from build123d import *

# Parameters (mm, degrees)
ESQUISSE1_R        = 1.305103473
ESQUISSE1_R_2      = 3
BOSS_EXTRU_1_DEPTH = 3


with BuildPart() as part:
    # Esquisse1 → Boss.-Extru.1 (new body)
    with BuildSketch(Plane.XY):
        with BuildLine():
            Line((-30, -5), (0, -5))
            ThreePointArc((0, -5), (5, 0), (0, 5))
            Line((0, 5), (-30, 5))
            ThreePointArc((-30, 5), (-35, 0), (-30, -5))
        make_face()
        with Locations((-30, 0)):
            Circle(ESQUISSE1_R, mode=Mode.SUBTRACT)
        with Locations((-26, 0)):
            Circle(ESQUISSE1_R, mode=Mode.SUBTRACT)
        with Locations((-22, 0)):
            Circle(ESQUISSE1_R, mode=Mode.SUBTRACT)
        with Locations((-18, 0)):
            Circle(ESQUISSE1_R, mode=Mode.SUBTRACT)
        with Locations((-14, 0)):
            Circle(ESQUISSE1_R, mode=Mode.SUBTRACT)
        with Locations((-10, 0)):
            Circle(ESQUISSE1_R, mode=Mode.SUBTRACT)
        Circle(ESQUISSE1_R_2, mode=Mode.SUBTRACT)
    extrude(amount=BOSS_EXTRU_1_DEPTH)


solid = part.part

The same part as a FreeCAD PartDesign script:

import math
import FreeCAD as App
import Part
import Sketcher

doc = App.newDocument("Part")
body = doc.addObject("PartDesign::Body", "Body")

# Sketch on XY plane
sketch1 = body.newObject("Sketcher::SketchObject", "Sketch")
sketch1.AttachmentSupport = (doc.getObject("XY_Plane"), [""])
sketch1.MapMode = "FlatFace"
sketch1.addGeometry(Part.LineSegment(App.Vector(-30, -5, 0), App.Vector(0, -5, 0)), False)
sketch1.addGeometry(Part.ArcOfCircle(Part.Circle(App.Vector(0, 0, 0), App.Vector(0, 0, 1), 5), math.radians(-90), math.radians(90)), False)
sketch1.addGeometry(Part.LineSegment(App.Vector(0, 5, 0), App.Vector(-30, 5, 0)), False)
sketch1.addGeometry(Part.ArcOfCircle(Part.Circle(App.Vector(-30, 0, 0), App.Vector(0, 0, 1), 5), math.radians(90), math.radians(270)), False)
sketch1.addGeometry(Part.Circle(App.Vector(-30, 0, 0), App.Vector(0, 0, 1), 1.305103), False)
sketch1.addGeometry(Part.Circle(App.Vector(-26, 0, 0), App.Vector(0, 0, 1), 1.305103), False)
sketch1.addGeometry(Part.Circle(App.Vector(-22, 0, 0), App.Vector(0, 0, 1), 1.305103), False)
sketch1.addGeometry(Part.Circle(App.Vector(-18, 0, 0), App.Vector(0, 0, 1), 1.305103), False)
sketch1.addGeometry(Part.Circle(App.Vector(-14, 0, 0), App.Vector(0, 0, 1), 1.305103), False)
sketch1.addGeometry(Part.Circle(App.Vector(-10, 0, 0), App.Vector(0, 0, 1), 1.305103), False)
sketch1.addGeometry(Part.Circle(App.Vector(0, 0, 0), App.Vector(0, 0, 1), 3), False)
sketch1.addConstraint(Sketcher.Constraint("Tangent", 0, 2, 1, 1))
sketch1.addConstraint(Sketcher.Constraint("Tangent", 1, 2, 2, 1))
sketch1.addConstraint(Sketcher.Constraint("Tangent", 2, 2, 3, 1))
sketch1.addConstraint(Sketcher.Constraint("Tangent", 3, 2, 0, 1))
sketch1.addConstraint(Sketcher.Constraint("Horizontal", 0))
sketch1.addConstraint(Sketcher.Constraint("Horizontal", 2))
sketch1.addConstraint(Sketcher.Constraint("Coincident", 1, 3, -1, 1))
sketch1.addConstraint(Sketcher.Constraint("Coincident", 10, 3, -1, 1))
sketch1.addConstraint(Sketcher.Constraint("Coincident", 4, 3, 3, 3))
sketch1.addConstraint(Sketcher.Constraint("Equal", 4, 5))
sketch1.addConstraint(Sketcher.Constraint("Equal", 5, 6))
sketch1.addConstraint(Sketcher.Constraint("Equal", 6, 7))
sketch1.addConstraint(Sketcher.Constraint("Equal", 7, 8))
sketch1.addConstraint(Sketcher.Constraint("Equal", 8, 9))
sketch1.addConstraint(Sketcher.Constraint("PointOnObject", 5, 3, -1))
sketch1.addConstraint(Sketcher.Constraint("PointOnObject", 6, 3, -1))
sketch1.addConstraint(Sketcher.Constraint("PointOnObject", 7, 3, -1))
sketch1.addConstraint(Sketcher.Constraint("PointOnObject", 8, 3, -1))
sketch1.addConstraint(Sketcher.Constraint("PointOnObject", 9, 3, -1))
sketch1.addConstraint(Sketcher.Constraint("Diameter", 10, 6.0))
sketch1.addConstraint(Sketcher.Constraint("Radius", 1, 5.0))
sketch1.addConstraint(Sketcher.Constraint("DistanceX", 0, 1, 0, 2, 30.0))
sketch1.addConstraint(Sketcher.Constraint("DistanceX", 5, 3, -1, 1, 26.0))
sketch1.addConstraint(Sketcher.Constraint("DistanceX", 6, 3, -1, 1, 22.0))
sketch1.addConstraint(Sketcher.Constraint("DistanceX", 7, 3, -1, 1, 18.0))
sketch1.addConstraint(Sketcher.Constraint("DistanceX", 8, 3, -1, 1, 14.0))
sketch1.addConstraint(Sketcher.Constraint("DistanceX", 9, 3, -1, 1, 10.0))
sketch1.addConstraint(Sketcher.Constraint("Diameter", 4, 2.610207))
pad1 = body.newObject("PartDesign::Pad", "Pad")
pad1.Profile = sketch1
pad1.Length = 3

doc.recompute()
